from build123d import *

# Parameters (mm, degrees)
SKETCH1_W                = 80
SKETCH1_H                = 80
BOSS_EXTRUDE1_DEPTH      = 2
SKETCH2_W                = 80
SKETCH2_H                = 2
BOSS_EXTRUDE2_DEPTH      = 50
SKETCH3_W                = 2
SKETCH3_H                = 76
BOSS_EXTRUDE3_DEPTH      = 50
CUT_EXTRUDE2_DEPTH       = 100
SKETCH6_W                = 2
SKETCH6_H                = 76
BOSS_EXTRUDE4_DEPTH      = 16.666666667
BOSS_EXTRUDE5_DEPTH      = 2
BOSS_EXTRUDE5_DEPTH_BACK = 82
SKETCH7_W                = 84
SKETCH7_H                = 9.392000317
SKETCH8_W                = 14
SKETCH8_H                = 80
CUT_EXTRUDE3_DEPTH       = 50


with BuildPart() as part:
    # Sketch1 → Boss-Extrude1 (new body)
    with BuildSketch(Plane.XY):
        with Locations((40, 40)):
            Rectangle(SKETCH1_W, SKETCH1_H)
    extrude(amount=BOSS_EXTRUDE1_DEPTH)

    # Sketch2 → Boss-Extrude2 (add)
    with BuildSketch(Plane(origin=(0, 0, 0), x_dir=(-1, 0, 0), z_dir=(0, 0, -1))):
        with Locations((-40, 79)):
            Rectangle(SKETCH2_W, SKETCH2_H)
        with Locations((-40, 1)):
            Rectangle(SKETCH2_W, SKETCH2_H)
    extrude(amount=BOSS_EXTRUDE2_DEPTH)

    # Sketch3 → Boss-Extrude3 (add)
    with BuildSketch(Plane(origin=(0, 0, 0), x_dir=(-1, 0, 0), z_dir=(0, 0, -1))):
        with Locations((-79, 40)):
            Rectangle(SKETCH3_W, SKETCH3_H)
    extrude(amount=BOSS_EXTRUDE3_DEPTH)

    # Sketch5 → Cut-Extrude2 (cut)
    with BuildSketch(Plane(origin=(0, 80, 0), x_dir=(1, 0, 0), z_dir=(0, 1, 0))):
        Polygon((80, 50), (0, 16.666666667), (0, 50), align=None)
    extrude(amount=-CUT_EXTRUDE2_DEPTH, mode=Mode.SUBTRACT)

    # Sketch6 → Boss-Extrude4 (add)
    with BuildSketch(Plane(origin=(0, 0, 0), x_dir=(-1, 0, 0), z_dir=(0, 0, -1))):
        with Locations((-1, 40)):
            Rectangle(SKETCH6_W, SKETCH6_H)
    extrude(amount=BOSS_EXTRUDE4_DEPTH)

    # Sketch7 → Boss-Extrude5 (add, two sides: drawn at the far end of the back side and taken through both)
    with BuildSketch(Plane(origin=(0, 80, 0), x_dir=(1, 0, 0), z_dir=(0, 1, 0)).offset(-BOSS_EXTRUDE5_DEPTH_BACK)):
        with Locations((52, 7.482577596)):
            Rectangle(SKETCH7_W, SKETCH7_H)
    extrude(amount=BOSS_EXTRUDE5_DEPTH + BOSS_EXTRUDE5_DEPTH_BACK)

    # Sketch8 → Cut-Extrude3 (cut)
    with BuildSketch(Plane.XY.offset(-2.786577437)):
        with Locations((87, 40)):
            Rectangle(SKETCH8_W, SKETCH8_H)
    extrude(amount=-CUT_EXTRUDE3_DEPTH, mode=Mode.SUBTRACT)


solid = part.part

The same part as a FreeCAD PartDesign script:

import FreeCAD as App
import Part
import Sketcher
Q = App.Units.Quantity


def add_polygon(sketch, points):
    """Adds a closed chain of lines whose ends are joined by coincident constraints."""
    first, n = sketch.GeometryCount, len(points)
    for a, b in zip(points, points[1:] + points[:1]):
        sketch.addGeometry(Part.LineSegment(App.Vector(*a, 0), App.Vector(*b, 0)), False)
    for i in range(n):
        sketch.addConstraint(Sketcher.Constraint("Coincident", first + i, 2, first + (i + 1) % n, 1))

doc = App.newDocument("Part")
body = doc.addObject("PartDesign::Body", "Body")

sketch1 = body.newObject("Sketcher::SketchObject", "Sketch")
sketch1.AttachmentSupport = (doc.getObject("XY_Plane"), [""])
sketch1.MapMode = "FlatFace"
add_polygon(sketch1, [(0, 80), (0, 0), (80, 0), (80, 80)])
sketch1.addConstraint(Sketcher.Constraint("Vertical", 0))
sketch1.addConstraint(Sketcher.Constraint("Horizontal", 1))
sketch1.addConstraint(Sketcher.Constraint("Vertical", 2))
sketch1.addConstraint(Sketcher.Constraint("Horizontal", 3))
sketch1.addConstraint(Sketcher.Constraint("Coincident", 0, 2, -1, 1))
sketch1.addConstraint(Sketcher.Constraint("Equal", 3, 0))
sketch1.addConstraint(Sketcher.Constraint("DistanceX", 1, 1, 1, 2, Q("80 mm")))
pad1 = body.newObject("PartDesign::Pad", "Pad")
pad1.Profile = sketch1
pad1.Length = 2

sketch2 = body.newObject("Sketcher::SketchObject", "Sketch001")
sketch2.AttachmentSupport = (doc.getObject("XY_Plane"), [""])
sketch2.MapMode = "FlatFace"
add_polygon(sketch2, [(80, 80), (80, 78), (0, 78), (0, 80)])
add_polygon(sketch2, [(80, 2), (80, 0), (0, 0), (0, 2)])
sketch2.addConstraint(Sketcher.Constraint("Vertical", 0))
sketch2.addConstraint(Sketcher.Constraint("Horizontal", 1))
sketch2.addConstraint(Sketcher.Constraint("Vertical", 2))
sketch2.addConstraint(Sketcher.Constraint("Horizontal", 3))
sketch2.addConstraint(Sketcher.Constraint("Vertical", 4))
sketch2.addConstraint(Sketcher.Constraint("Horizontal", 5))
sketch2.addConstraint(Sketcher.Constraint("Vertical", 6))
sketch2.addConstraint(Sketcher.Constraint("Horizontal", 7))
sketch2.addConstraint(Sketcher.Constraint("Coincident", 5, 2, -1, 1))
sketch2.addConstraint(Sketcher.Constraint("PointOnObject", 1, 2, -2))
sketch2.addConstraint(Sketcher.Constraint("Vertical", 3, 2, 4, 2))
sketch2.addConstraint(Sketcher.Constraint("Equal", 2, 4))
sketch2.addConstraint(Sketcher.Constraint("DistanceX", 1, 2, 1, 1, Q("80 mm")))
sketch2.addConstraint(Sketcher.Constraint("DistanceY", 0, 2, 0, 1, Q("2 mm")))
sketch2.addConstraint(Sketcher.Constraint("DistanceY", -1, 1, 0, 2, Q("78 mm")))
pad2 = body.newObject("PartDesign::Pad", "Pad001")
pad2.Profile = sketch2
pad2.Length = 50
pad2.Reversed = True

sketch3 = body.newObject("Sketcher::SketchObject", "Sketch002")
sketch3.AttachmentSupport = (doc.getObject("XY_Plane"), [""])
sketch3.MapMode = "FlatFace"
add_polygon(sketch3, [(80, 78), (80, 2), (78, 2), (78, 78)])
sketch3.addConstraint(Sketcher.Constraint("Vertical", 0))
sketch3.addConstraint(Sketcher.Constraint("Horizontal", 1))
sketch3.addConstraint(Sketcher.Constraint("Vertical", 2))
sketch3.addConstraint(Sketcher.Constraint("Horizontal", 3))
sketch3.addConstraint(Sketcher.Constraint("DistanceX", 1, 2, 1, 1, Q("2 mm")))
sketch3.addConstraint(Sketcher.Constraint("DistanceY", 0, 2, 0, 1, Q("76 mm")))
sketch3.addConstraint(Sketcher.Constraint("DistanceX", -1, 1, 0, 2, Q("80 mm")))
sketch3.addConstraint(Sketcher.Constraint("DistanceY", -1, 1, 0, 2, Q("2 mm")))
pad3 = body.newObject("PartDesign::Pad", "Pad002")
pad3.Profile = sketch3
pad3.Length = 50
pad3.Reversed = True

sketch4 = body.newObject("Sketcher::SketchObject", "Sketch003")
sketch4.AttachmentSupport = (doc.getObject("XZ_Plane"), [""])
sketch4.MapMode = "FlatFace"
sketch4.AttachmentOffset = App.Placement(App.Vector(0, 0, -80), App.Rotation())
add_polygon(sketch4, [(0, -16.666667), (80, -50), (0, -50)])
sketch4.addConstraint(Sketcher.Constraint("Horizontal", 1))
sketch4.addConstraint(Sketcher.Constraint("Vertical", 2))
sketch4.addConstraint(Sketcher.Constraint("PointOnObject", 1, 2, -2))
sketch4.addConstraint(Sketcher.Constraint("DistanceX", 1, 2, 1, 1, Q("80 mm")))
sketch4.addConstraint(Sketcher.Constraint("DistanceY", 0, 2, -1, 1, Q("50 mm")))
sketch4.addConstraint(Sketcher.Constraint("DistanceY", 2, 1, 2, 2, Q("33.333333 mm")))
pocket1 = body.newObject("PartDesign::Pocket", "Pocket")
pocket1.Profile = sketch4
pocket1.Length = 100
pocket1.Reversed = True

sketch5 = body.newObject("Sketcher::SketchObject", "Sketch004")
sketch5.AttachmentSupport = (doc.getObject("XY_Plane"), [""])
sketch5.MapMode = "FlatFace"
add_polygon(sketch5, [(2, 78), (2, 2), (0, 2), (0, 78)])
sketch5.addConstraint(Sketcher.Constraint("Vertical", 0))
sketch5.addConstraint(Sketcher.Constraint("Horizontal", 1))
sketch5.addConstraint(Sketcher.Constraint("Vertical", 2))
sketch5.addConstraint(Sketcher.Constraint("Horizontal", 3))
sketch5.addConstraint(Sketcher.Constraint("PointOnObject", 1, 2, -2))
sketch5.addConstraint(Sketcher.Constraint("DistanceX", 1, 2, 1, 1, Q("2 mm")))
sketch5.addConstraint(Sketcher.Constraint("DistanceY", 0, 2, 0, 1, Q("76 mm")))
sketch5.addConstraint(Sketcher.Constraint("DistanceY", -1, 1, 0, 2, Q("2 mm")))
pad4 = body.newObject("PartDesign::Pad", "Pad003")
pad4.Profile = sketch5
pad4.Length = 16.666667
pad4.Reversed = True

sketch6 = body.newObject("Sketcher::SketchObject", "Sketch005")
sketch6.AttachmentSupport = (doc.getObject("XZ_Plane"), [""])
sketch6.MapMode = "FlatFace"
sketch6.AttachmentOffset = App.Placement(App.Vector(0, 0, -80), App.Rotation())
add_polygon(sketch6, [(10, -12.178578), (10, -2.786577), (94, -2.786577), (94, -12.178578)])
sketch6.addConstraint(Sketcher.Constraint("Vertical", 0))
sketch6.addConstraint(Sketcher.Constraint("Horizontal", 1))
sketch6.addConstraint(Sketcher.Constraint("Vertical", 2))
sketch6.addConstraint(Sketcher.Constraint("Horizontal", 3))
sketch6.addConstraint(Sketcher.Constraint("DistanceX", 1, 1, 1, 2, Q("84 mm")))
sketch6.addConstraint(Sketcher.Constraint("DistanceX", -1, 1, 0, 2, Q("10 mm")))
sketch6.addConstraint(Sketcher.Constraint("DistanceY", 0, 1, 0, 2, Q("9.392 mm")))
sketch6.addConstraint(Sketcher.Constraint("DistanceY", 0, 2, -1, 1, Q("2.786577 mm")))
pad5 = body.newObject("PartDesign::Pad", "Pad004")
pad5.Profile = sketch6
pad5.Type = "TwoLengths"
pad5.Length = 2
pad5.Length2 = 82
pad5.Reversed = True

sketch7 = body.newObject("Sketcher::SketchObject", "Sketch006")
sketch7.AttachmentSupport = (doc.getObject("XY_Plane"), [""])
sketch7.MapMode = "FlatFace"
sketch7.AttachmentOffset = App.Placement(App.Vector(0, 0, -2.786577), App.Rotation())
add_polygon(sketch7, [(80, 80), (80, 0), (94, 0), (94, 80)])
sketch7.addConstraint(Sketcher.Constraint("Vertical", 0))
sketch7.addConstraint(Sketcher.Constraint("Horizontal", 1))
sketch7.addConstraint(Sketcher.Constraint("Vertical", 2))
sketch7.addConstraint(Sketcher.Constraint("Horizontal", 3))
sketch7.addConstraint(Sketcher.Constraint("PointOnObject", 0, 2, -1))
sketch7.addConstraint(Sketcher.Constraint("DistanceX", 1, 1, 1, 2, Q("14 mm")))
sketch7.addConstraint(Sketcher.Constraint("DistanceY", 0, 2, 0, 1, Q("80 mm")))
sketch7.addConstraint(Sketcher.Constraint("DistanceX", -1, 1, 0, 2, Q("80 mm")))
pocket2 = body.newObject("PartDesign::Pocket", "Pocket001")
pocket2.Profile = sketch7
pocket2.Length = 50

doc.recompute()
